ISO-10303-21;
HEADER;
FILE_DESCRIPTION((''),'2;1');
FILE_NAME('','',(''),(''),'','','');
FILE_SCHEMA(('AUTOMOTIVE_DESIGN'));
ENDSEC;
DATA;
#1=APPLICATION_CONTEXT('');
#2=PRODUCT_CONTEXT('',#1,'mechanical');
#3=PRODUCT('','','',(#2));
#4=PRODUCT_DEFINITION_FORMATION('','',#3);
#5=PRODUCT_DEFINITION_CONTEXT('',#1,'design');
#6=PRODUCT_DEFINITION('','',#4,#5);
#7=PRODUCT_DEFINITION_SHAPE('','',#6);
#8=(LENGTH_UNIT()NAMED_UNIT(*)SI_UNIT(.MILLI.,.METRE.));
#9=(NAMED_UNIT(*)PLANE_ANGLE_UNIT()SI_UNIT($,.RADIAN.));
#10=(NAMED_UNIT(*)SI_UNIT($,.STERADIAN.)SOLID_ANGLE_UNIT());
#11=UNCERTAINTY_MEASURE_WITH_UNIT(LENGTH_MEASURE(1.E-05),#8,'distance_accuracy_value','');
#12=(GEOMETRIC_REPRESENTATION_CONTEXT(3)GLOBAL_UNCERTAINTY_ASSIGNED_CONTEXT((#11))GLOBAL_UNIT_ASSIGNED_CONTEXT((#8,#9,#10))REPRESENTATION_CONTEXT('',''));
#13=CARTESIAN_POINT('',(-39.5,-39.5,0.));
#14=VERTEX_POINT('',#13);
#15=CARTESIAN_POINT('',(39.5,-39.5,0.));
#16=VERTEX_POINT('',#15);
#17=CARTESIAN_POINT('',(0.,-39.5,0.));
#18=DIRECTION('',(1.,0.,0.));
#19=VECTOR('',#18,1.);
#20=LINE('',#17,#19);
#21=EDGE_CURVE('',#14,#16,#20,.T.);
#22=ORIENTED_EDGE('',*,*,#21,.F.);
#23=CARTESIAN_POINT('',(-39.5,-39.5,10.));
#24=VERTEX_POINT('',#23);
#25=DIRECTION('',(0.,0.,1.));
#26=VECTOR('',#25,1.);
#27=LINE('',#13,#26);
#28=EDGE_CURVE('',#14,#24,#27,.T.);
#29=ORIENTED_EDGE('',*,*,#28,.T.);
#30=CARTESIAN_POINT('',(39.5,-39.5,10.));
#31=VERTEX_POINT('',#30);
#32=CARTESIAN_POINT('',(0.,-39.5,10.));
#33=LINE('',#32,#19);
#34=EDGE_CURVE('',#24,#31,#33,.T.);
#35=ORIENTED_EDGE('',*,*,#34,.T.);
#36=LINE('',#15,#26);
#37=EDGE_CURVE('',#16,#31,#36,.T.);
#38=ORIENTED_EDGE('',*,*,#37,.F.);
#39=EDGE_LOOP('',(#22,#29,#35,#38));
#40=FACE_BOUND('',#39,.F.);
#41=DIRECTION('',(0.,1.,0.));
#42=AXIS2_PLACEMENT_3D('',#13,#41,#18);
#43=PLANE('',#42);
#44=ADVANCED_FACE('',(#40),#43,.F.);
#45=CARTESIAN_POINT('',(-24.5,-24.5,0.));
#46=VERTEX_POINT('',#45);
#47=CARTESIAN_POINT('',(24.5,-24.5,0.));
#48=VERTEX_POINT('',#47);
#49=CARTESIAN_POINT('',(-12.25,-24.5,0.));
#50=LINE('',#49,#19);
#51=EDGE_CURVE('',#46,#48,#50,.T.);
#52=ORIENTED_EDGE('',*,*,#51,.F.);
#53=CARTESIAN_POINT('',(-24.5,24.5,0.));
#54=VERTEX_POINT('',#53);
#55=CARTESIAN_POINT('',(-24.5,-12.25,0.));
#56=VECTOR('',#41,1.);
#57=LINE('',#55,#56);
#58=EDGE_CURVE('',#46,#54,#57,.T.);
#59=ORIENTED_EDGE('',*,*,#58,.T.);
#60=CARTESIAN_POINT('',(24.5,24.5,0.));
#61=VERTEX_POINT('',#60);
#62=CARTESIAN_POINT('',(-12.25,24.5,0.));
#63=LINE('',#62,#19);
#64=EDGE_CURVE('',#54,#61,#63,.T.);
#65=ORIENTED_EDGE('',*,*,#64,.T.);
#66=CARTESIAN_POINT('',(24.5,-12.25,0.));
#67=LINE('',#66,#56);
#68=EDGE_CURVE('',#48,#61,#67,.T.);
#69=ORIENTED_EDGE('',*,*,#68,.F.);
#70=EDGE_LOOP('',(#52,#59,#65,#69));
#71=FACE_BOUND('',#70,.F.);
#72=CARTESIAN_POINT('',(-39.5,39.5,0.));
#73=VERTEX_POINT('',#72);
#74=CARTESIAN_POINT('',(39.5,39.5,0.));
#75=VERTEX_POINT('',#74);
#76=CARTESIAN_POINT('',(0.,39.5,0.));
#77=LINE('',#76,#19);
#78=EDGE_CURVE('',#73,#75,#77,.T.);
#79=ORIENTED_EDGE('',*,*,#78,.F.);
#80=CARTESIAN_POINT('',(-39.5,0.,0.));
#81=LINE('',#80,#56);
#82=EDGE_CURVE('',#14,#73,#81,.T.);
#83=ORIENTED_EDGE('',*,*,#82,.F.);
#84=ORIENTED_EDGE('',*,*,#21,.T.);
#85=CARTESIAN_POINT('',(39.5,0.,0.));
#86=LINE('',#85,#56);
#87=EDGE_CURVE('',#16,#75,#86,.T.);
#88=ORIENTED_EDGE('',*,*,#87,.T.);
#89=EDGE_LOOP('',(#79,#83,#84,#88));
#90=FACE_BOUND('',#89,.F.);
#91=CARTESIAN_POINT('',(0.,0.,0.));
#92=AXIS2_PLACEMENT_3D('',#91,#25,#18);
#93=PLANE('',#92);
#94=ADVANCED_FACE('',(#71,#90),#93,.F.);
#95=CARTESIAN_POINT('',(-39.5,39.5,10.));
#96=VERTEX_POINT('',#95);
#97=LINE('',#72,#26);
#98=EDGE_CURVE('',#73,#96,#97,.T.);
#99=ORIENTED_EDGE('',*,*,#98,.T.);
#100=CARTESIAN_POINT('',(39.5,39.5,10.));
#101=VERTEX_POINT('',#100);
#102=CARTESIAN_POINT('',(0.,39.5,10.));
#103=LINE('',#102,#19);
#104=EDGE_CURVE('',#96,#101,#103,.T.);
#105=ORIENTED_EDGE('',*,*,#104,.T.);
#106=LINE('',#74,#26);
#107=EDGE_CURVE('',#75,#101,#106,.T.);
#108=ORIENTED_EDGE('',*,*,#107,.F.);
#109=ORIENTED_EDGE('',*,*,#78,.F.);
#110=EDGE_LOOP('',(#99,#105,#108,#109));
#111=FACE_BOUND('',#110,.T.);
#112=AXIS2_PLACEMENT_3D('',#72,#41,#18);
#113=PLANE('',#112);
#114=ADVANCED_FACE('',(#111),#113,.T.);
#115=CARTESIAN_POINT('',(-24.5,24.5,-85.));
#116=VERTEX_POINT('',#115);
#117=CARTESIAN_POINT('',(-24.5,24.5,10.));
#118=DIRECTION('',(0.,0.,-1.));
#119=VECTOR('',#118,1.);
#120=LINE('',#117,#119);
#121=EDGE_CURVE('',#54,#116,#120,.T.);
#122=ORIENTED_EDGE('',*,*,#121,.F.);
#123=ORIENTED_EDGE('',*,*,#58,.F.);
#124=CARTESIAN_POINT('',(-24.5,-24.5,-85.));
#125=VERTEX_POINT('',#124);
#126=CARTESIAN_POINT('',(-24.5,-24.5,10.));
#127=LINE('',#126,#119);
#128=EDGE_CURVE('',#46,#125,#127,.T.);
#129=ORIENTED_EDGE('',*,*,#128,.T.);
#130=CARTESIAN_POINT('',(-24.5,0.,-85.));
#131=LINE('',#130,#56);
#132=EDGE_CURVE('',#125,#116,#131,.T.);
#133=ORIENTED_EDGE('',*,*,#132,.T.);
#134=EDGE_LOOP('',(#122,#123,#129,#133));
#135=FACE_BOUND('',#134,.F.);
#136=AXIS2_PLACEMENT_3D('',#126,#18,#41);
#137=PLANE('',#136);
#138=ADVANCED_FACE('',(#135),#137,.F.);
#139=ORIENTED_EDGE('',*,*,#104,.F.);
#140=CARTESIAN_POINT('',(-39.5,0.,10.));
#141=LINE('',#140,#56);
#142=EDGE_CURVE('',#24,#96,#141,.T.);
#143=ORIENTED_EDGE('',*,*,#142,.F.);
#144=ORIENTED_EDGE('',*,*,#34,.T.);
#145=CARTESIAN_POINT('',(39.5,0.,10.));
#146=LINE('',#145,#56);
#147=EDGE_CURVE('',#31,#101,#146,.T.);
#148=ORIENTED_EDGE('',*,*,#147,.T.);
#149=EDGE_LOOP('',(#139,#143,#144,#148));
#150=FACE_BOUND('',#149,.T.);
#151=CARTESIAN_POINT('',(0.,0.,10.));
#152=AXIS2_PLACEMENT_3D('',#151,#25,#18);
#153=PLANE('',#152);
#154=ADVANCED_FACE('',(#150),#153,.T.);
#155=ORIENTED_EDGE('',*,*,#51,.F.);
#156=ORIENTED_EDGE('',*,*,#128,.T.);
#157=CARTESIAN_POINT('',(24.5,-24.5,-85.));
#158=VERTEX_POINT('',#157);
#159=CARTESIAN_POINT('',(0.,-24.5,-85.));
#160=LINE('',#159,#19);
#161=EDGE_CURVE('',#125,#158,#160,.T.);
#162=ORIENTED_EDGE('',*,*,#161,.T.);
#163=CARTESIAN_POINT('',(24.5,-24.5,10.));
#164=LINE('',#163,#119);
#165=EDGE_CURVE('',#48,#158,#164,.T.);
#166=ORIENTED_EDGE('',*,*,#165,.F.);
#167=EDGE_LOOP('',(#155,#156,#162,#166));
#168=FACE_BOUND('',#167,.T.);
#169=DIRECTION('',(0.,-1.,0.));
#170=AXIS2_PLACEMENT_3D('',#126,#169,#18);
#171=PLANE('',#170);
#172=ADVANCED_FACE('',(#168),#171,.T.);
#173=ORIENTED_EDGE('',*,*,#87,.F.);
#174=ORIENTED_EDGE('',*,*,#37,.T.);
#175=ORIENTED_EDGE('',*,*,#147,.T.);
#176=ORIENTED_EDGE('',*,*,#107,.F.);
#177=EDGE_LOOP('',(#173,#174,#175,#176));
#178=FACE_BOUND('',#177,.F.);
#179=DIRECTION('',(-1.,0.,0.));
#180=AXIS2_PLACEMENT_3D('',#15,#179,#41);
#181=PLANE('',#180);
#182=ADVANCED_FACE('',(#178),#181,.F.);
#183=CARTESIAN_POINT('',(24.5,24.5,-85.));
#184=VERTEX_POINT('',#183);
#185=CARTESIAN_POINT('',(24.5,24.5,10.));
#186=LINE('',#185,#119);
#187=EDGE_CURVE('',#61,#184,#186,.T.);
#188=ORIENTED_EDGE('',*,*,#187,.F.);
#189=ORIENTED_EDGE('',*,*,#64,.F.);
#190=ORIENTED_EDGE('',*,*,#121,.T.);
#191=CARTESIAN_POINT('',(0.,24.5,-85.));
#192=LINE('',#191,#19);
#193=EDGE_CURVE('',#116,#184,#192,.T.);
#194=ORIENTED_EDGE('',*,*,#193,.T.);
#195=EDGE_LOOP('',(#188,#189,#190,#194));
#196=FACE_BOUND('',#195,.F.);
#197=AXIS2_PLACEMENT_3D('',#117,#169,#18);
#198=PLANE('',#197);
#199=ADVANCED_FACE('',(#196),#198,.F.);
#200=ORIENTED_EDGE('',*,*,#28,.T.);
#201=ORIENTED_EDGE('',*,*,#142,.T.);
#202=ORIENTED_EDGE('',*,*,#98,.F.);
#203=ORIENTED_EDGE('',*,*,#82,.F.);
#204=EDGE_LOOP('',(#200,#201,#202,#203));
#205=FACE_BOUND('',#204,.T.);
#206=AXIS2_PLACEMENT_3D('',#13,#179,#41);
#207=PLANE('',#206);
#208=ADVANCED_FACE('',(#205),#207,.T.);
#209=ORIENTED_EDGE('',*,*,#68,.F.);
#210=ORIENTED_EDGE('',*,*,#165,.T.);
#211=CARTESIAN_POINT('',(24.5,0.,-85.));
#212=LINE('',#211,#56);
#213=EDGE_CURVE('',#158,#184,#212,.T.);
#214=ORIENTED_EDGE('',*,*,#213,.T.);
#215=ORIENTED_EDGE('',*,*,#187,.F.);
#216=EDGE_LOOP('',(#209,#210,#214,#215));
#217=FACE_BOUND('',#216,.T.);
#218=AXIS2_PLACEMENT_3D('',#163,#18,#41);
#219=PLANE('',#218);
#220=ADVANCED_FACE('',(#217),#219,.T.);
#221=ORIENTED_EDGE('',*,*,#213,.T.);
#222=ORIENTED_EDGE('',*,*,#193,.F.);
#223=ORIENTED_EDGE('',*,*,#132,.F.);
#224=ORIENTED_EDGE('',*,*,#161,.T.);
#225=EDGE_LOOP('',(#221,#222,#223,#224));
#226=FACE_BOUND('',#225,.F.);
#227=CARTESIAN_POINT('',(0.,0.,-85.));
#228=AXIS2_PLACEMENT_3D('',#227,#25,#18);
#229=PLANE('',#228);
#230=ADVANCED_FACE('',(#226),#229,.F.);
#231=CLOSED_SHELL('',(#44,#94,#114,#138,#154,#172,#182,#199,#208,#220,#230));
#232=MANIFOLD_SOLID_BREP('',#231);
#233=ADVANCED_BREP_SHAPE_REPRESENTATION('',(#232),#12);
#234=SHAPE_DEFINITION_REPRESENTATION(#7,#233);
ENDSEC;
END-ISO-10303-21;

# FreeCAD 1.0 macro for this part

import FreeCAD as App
import Part
import Sketcher
from FreeCAD import Vector

doc = App.newDocument("Part")
params = doc.addObject("Spreadsheet::Sheet", "Params")
for row, (alias, value) in enumerate([
    ("sketch1_width", "79 mm"),
    ("pad1_length", "10 mm"),
    ("sketch2_width", "49 mm"),
    ("pad2_length", "95 mm"),
], start=1):
    params.set(f"A{row}", alias)
    params.set(f"B{row}", "=" + value)
    params.setAlias(f"B{row}", alias)

body = doc.addObject("PartDesign::Body", "Body")

sketch1 = body.newObject("Sketcher::SketchObject", "Sketch")
sketch1.AttachmentSupport = (doc.getObject("XY_Plane"), [""])
sketch1.MapMode = "FlatFace"
sketch1.addGeometry([
    Part.LineSegment(Vector(-40, 40, 0), Vector(-40, -40, 0)),
    Part.LineSegment(Vector(-40, -40, 0), Vector(40, -40, 0)),
    Part.LineSegment(Vector(40, -40, 0), Vector(40, 40, 0)),
    Part.LineSegment(Vector(40, 40, 0), Vector(-40, 40, 0)),
], False)
sketch1.addConstraint([
    Sketcher.Constraint("Coincident", 0, 2, 1, 1),
    Sketcher.Constraint("Coincident", 1, 2, 2, 1),
    Sketcher.Constraint("Coincident", 2, 2, 3, 1),
    Sketcher.Constraint("Coincident", 3, 2, 0, 1),
    Sketcher.Constraint("Vertical", 0),
    Sketcher.Constraint("Horizontal", 1),
    Sketcher.Constraint("Vertical", 2),
    Sketcher.Constraint("Horizontal", 3),
    Sketcher.Constraint("Symmetric", 0, 2, 2, 2, -1, 1),
    Sketcher.Constraint("Equal", 3, 0),
    Sketcher.Constraint("DistanceX", 1, 1, 1, 2, 79.0),
])
sketch1.setExpression("Constraints[10]", "Params.sketch1_width")
pad1 = body.newObject("PartDesign::Pad", "Pad")
pad1.Profile = sketch1
pad1.setExpression("Length", "Params.pad1_length")

sketch2 = body.newObject("Sketcher::SketchObject", "Sketch001")
sketch2.AttachmentSupport = (doc.getObject("XY_Plane"), [""])
sketch2.MapMode = "FlatFace"
sketch2.AttachmentOffset = App.Placement(Vector(0, 0, 10), App.Rotation())
sketch2.addGeometry([
    Part.LineSegment(Vector(-24, 24, 0), Vector(-24, -24, 0)),
    Part.LineSegment(Vector(-24, -24, 0), Vector(24, -24, 0)),
    Part.LineSegment(Vector(24, -24, 0), Vector(24, 24, 0)),
    Part.LineSegment(Vector(24, 24, 0), Vector(-24, 24, 0)),
], False)
sketch2.addConstraint([
    Sketcher.Constraint("Coincident", 0, 2, 1, 1),
    Sketcher.Constraint("Coincident", 1, 2, 2, 1),
    Sketcher.Constraint("Coincident", 2, 2, 3, 1),
    Sketcher.Constraint("Coincident", 3, 2, 0, 1),
    Sketcher.Constraint("Vertical", 0),
    Sketcher.Constraint("Horizontal", 1),
    Sketcher.Constraint("Vertical", 2),
    Sketcher.Constraint("Horizontal", 3),
    Sketcher.Constraint("Symmetric", 0, 2, 2, 2, -1, 1),
    Sketcher.Constraint("Equal", 3, 0),
    Sketcher.Constraint("DistanceX", 1, 1, 1, 2, 49.0),
])
sketch2.setExpression("Constraints[10]", "Params.sketch2_width")
pad2 = body.newObject("PartDesign::Pad", "Pad001")
pad2.Profile = sketch2
pad2.setExpression("Length", "Params.pad2_length")
pad2.Reversed = True

doc.recompute()
